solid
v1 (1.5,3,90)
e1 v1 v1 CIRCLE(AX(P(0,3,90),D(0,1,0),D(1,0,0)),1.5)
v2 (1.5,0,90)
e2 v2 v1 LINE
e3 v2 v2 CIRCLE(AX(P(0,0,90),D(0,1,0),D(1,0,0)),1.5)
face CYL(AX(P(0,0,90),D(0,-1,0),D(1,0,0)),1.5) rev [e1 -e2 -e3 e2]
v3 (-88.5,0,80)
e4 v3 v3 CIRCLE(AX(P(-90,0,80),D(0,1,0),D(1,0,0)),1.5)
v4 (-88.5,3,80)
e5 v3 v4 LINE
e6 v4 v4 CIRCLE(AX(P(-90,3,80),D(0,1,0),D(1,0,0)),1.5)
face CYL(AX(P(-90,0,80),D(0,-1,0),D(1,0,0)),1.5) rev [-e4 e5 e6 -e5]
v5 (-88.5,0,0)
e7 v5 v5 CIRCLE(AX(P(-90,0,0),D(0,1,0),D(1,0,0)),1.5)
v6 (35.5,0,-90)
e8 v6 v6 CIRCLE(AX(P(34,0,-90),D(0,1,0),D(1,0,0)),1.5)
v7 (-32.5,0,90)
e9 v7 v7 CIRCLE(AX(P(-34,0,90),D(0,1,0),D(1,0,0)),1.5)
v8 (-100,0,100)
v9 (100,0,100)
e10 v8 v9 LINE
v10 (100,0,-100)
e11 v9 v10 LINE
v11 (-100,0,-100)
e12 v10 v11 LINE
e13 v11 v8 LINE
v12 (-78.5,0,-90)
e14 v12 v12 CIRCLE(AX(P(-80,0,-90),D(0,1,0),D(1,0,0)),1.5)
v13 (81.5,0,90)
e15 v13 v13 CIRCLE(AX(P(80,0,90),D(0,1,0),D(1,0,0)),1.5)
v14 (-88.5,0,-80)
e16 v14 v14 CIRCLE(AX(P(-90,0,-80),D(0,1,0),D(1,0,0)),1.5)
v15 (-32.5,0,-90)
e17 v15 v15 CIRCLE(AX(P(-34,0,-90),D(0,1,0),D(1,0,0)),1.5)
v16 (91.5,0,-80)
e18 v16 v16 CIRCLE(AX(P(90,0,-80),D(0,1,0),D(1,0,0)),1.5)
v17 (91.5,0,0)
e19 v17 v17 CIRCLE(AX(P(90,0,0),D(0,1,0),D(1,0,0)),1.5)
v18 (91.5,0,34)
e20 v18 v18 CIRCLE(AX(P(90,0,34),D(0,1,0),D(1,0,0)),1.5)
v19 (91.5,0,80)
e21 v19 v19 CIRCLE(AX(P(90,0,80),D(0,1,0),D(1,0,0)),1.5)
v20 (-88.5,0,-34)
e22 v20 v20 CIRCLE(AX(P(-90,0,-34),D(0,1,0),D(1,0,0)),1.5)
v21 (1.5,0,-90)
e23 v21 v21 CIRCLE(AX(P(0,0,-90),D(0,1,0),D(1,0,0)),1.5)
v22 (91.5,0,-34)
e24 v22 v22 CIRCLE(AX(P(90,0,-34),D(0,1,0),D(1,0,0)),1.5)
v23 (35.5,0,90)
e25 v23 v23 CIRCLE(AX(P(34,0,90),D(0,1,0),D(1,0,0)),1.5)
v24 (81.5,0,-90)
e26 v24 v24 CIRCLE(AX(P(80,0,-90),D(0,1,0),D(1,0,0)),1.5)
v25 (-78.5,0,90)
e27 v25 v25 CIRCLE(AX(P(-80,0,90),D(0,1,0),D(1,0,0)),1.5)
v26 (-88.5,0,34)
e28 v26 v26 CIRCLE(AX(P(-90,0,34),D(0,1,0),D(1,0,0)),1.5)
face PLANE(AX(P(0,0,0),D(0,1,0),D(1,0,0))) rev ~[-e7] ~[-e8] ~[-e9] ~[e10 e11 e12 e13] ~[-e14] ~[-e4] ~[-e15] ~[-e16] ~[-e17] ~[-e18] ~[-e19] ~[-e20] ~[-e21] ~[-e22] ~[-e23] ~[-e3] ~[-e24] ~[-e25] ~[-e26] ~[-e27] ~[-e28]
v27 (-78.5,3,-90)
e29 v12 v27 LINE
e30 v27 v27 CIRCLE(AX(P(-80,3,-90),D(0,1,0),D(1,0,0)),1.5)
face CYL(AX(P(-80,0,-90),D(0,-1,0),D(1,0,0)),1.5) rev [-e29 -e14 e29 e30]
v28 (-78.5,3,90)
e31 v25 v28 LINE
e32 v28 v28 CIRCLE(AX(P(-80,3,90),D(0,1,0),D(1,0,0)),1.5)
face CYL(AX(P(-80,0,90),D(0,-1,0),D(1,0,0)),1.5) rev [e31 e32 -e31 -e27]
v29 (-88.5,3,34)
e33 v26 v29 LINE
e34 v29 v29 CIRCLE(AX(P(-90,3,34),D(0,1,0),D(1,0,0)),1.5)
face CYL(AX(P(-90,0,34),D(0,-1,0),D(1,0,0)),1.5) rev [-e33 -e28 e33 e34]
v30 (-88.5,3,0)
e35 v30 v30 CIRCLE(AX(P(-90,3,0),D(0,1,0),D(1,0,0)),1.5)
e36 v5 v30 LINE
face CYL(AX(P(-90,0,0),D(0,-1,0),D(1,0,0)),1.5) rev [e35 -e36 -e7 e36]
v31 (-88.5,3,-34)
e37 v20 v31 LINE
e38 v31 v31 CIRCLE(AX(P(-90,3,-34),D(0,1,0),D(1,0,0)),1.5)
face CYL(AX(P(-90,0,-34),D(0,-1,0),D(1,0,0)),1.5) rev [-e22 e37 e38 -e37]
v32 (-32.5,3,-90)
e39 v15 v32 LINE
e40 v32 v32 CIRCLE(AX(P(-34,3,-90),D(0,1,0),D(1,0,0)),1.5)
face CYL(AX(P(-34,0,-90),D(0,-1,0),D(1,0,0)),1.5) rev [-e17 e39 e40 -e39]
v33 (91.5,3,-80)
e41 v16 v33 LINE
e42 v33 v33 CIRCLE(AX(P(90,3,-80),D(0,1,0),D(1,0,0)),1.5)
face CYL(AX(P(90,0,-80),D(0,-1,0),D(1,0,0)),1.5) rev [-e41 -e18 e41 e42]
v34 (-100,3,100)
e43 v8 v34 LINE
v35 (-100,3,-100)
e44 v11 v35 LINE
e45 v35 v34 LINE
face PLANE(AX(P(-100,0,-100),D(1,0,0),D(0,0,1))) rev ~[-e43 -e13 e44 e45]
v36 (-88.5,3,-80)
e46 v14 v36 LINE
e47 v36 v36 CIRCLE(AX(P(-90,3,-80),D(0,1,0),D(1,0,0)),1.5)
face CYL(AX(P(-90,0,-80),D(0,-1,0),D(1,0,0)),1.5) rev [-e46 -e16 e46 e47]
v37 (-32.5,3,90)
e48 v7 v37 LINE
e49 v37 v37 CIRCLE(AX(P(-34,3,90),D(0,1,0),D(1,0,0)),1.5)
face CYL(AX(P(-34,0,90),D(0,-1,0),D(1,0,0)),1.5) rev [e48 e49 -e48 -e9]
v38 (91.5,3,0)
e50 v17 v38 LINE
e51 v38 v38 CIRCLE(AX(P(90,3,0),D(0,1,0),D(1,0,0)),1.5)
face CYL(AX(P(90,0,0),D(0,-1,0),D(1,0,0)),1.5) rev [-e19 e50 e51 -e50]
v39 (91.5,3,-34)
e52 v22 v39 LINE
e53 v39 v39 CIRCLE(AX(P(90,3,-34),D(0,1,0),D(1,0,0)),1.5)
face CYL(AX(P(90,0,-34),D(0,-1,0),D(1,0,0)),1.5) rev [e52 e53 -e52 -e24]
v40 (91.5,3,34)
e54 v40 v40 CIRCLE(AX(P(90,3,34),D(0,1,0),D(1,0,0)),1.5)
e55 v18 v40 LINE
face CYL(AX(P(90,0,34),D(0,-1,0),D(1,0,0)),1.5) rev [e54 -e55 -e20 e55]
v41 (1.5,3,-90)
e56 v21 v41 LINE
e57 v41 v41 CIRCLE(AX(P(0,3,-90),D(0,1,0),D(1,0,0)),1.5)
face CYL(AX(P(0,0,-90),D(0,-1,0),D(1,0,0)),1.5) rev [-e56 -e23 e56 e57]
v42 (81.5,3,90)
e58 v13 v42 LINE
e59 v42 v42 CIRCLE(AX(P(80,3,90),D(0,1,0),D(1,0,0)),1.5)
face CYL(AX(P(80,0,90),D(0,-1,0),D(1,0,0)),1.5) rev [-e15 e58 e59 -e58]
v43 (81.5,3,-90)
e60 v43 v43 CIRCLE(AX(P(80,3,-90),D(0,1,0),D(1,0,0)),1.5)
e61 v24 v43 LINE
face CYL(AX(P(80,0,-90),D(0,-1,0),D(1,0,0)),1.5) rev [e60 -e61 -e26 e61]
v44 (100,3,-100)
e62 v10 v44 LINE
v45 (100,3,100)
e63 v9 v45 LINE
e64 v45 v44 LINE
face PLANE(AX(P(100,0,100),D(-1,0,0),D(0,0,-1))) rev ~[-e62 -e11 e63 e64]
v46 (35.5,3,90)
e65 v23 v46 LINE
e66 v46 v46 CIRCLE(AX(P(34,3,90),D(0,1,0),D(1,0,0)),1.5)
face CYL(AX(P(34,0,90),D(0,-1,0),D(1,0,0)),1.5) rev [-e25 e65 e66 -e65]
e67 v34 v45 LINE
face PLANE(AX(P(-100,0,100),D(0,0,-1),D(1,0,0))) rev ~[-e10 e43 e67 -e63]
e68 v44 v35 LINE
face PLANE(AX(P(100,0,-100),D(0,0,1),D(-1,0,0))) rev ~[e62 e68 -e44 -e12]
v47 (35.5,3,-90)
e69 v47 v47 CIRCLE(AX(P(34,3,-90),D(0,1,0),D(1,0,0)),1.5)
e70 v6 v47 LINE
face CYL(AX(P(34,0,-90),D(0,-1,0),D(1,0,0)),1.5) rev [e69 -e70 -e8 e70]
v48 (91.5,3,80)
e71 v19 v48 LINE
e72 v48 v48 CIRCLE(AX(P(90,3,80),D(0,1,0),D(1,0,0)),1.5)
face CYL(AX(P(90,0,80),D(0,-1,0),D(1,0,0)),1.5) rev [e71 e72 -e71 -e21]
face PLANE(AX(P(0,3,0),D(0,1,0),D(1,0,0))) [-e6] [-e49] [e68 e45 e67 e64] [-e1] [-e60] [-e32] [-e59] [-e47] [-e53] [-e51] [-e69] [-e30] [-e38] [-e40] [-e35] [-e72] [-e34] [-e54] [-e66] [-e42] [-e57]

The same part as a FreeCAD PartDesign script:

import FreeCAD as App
import Part
import Sketcher
Q = App.Units.Quantity

doc = App.newDocument("Part")
params = doc.addObject("Spreadsheet::Sheet", "Params")
for row, (alias, value) in enumerate([
    ("sketch1_diameter", "3 mm"),
    ("sketch1_width", "200 mm"),
    ("pad1_length", "3 mm"),
], start=1):
    params.set(f"A{row}", alias)
    params.set(f"B{row}", "=" + value)
    params.setAlias(f"B{row}", alias)

body = doc.addObject("PartDesign::Body", "Body")

# Sketch on XZ plane
sketch1 = body.newObject("Sketcher::SketchObject", "Sketch")
sketch1.AttachmentSupport = (doc.getObject("XZ_Plane"), [""])
sketch1.MapMode = "FlatFace"
sketch1.addGeometry([
    Part.LineSegment(App.Vector(100, 100, 0), App.Vector(100, -100, 0)),  # 0
    Part.LineSegment(App.Vector(100, -100, 0), App.Vector(-100, -100, 0)),  # 1
    Part.LineSegment(App.Vector(-100, -100, 0), App.Vector(-100, 100, 0)),  # 2
    Part.LineSegment(App.Vector(-100, 100, 0), App.Vector(100, 100, 0)),  # 3
    Part.Circle(App.Vector(-80, 90, 0), App.Vector(0, 0, 1), 1.5),  # 4
    Part.Circle(App.Vector(-90, 80, 0), App.Vector(0, 0, 1), 1.5),  # 5
    Part.Circle(App.Vector(-34, 90, 0), App.Vector(0, 0, 1), 1.5),  # 6
    Part.Circle(App.Vector(-90, 34, 0), App.Vector(0, 0, 1), 1.5),  # 7
    Part.Circle(App.Vector(0, 90, 0), App.Vector(0, 0, 1), 1.5),  # 8
    Part.Circle(App.Vector(34, 90, 0), App.Vector(0, 0, 1), 1.5),  # 9
    Part.Circle(App.Vector(80, 90, 0), App.Vector(0, 0, 1), 1.5),  # 10
    Part.Circle(App.Vector(90, 80, 0), App.Vector(0, 0, 1), 1.5),  # 11
    Part.Circle(App.Vector(90, 34, 0), App.Vector(0, 0, 1), 1.5),  # 12
    Part.Circle(App.Vector(-90, 0, 0), App.Vector(0, 0, 1), 1.5),  # 13
    Part.Circle(App.Vector(-90, -34, 0), App.Vector(0, 0, 1), 1.5),  # 14
    Part.Circle(App.Vector(-90, -80, 0), App.Vector(0, 0, 1), 1.5),  # 15
    Part.Circle(App.Vector(-80, -90, 0), App.Vector(0, 0, 1), 1.5),  # 16
    Part.Circle(App.Vector(-34, -90, 0), App.Vector(0, 0, 1), 1.5),  # 17
    Part.Circle(App.Vector(90, 0, 0), App.Vector(0, 0, 1), 1.5),  # 18
    Part.Circle(App.Vector(90, -34, 0), App.Vector(0, 0, 1), 1.5),  # 19
    Part.Circle(App.Vector(0, -90, 0), App.Vector(0, 0, 1), 1.5),  # 20
    Part.Circle(App.Vector(34, -90, 0), App.Vector(0, 0, 1), 1.5),  # 21
    Part.Circle(App.Vector(90, -80, 0), App.Vector(0, 0, 1), 1.5),  # 22
    Part.Circle(App.Vector(80, -90, 0), App.Vector(0, 0, 1), 1.5),  # 23
], False)
sketch1.addConstraint([
    Sketcher.Constraint("Coincident", 0, 2, 1, 1),
    Sketcher.Constraint("Coincident", 1, 2, 2, 1),
    Sketcher.Constraint("Coincident", 2, 2, 3, 1),
    Sketcher.Constraint("Coincident", 3, 2, 0, 1),
    Sketcher.Constraint("Vertical", 0),
    Sketcher.Constraint("Horizontal", 1),
    Sketcher.Constraint("Vertical", 2),
    Sketcher.Constraint("Horizontal", 3),
    Sketcher.Constraint("Equal", 4, 5),
    Sketcher.Constraint("Equal", 5, 6),
    Sketcher.Constraint("Equal", 6, 7),
    Sketcher.Constraint("Equal", 7, 8),
    Sketcher.Constraint("Equal", 8, 9),
    Sketcher.Constraint("Equal", 9, 10),
    Sketcher.Constraint("Equal", 10, 11),
    Sketcher.Constraint("Equal", 11, 12),
    Sketcher.Constraint("Equal", 12, 13),
    Sketcher.Constraint("Equal", 13, 14),
    Sketcher.Constraint("Equal", 14, 15),
    Sketcher.Constraint("Equal", 15, 16),
    Sketcher.Constraint("Equal", 16, 17),
    Sketcher.Constraint("Equal", 17, 18),
    Sketcher.Constraint("Equal", 18, 19),
    Sketcher.Constraint("Equal", 19, 20),
    Sketcher.Constraint("Equal", 20, 21),
    Sketcher.Constraint("Equal", 21, 22),
    Sketcher.Constraint("Equal", 22, 23),
    Sketcher.Constraint("Symmetric", 12, 3, 14, 3, -1, 1),
    Sketcher.Constraint("Symmetric", 11, 3, 15, 3, -1, 1),
    Sketcher.Constraint("Symmetric", 10, 3, 16, 3, -1, 1),
    Sketcher.Constraint("Symmetric", 9, 3, 17, 3, -1, 1),
    Sketcher.Constraint("Symmetric", 13, 3, 18, 3, -1, 1),
    Sketcher.Constraint("Symmetric", 7, 3, 19, 3, -1, 1),
    Sketcher.Constraint("Symmetric", 8, 3, 20, 3, -1, 1),
    Sketcher.Constraint("Symmetric", 6, 3, 21, 3, -1, 1),
    Sketcher.Constraint("Symmetric", 5, 3, 22, 3, -1, 1),
    Sketcher.Constraint("Symmetric", 4, 3, 23, 3, -1, 1),
    Sketcher.Constraint("Symmetric", 0, 2, 2, 2, -1, 1),
    Sketcher.Constraint("Symmetric", 6, 3, 9, 3, -2),
    Sketcher.Constraint("Symmetric", 4, 3, 10, 3, -2),
    Sketcher.Constraint("Symmetric", 5, 3, 11, 3, -2),
    Sketcher.Constraint("Symmetric", 7, 3, 12, 3, -2),
    Sketcher.Constraint("PointOnObject", 8, 3, -2),
    Sketcher.Constraint("PointOnObject", 13, 3, -1),
    Sketcher.Constraint("Horizontal", 4, 3, 6, 3),
    Sketcher.Constraint("Horizontal", 6, 3, 8, 3),
    Sketcher.Constraint("Vertical", 5, 3, 7, 3),
    Sketcher.Constraint("Vertical", 7, 3, 13, 3),
    Sketcher.Constraint("Equal", 3, 0),
    Sketcher.Constraint("Diameter", 4, Q("3 mm")),
    Sketcher.Constraint("DistanceX", 1, 2, 1, 1, Q("200 mm")),
    Sketcher.Constraint("DistanceY", -1, 1, 4, 3, Q("90 mm")),
    Sketcher.Constraint("DistanceX", 5, 3, -1, 1, Q("90 mm")),
    Sketcher.Constraint("DistanceX", 5, 3, 4, 3, Q("10 mm")),
    Sketcher.Constraint("DistanceY", 5, 3, 4, 3, Q("10 mm")),
    Sketcher.Constraint("DistanceY", 0, 2, 19, 3, Q("66 mm")),
    Sketcher.Constraint("DistanceX", 21, 3, 0, 2, Q("66 mm")),
])
sketch1.setExpression("Constraints[49]", "Params.sketch1_diameter")
sketch1.setExpression("Constraints[50]", "Params.sketch1_width")
pad1 = body.newObject("PartDesign::Pad", "Pad")
pad1.Profile = sketch1
pad1.setExpression("Length", "Params.pad1_length")
pad1.Reversed = True

doc.recompute()
